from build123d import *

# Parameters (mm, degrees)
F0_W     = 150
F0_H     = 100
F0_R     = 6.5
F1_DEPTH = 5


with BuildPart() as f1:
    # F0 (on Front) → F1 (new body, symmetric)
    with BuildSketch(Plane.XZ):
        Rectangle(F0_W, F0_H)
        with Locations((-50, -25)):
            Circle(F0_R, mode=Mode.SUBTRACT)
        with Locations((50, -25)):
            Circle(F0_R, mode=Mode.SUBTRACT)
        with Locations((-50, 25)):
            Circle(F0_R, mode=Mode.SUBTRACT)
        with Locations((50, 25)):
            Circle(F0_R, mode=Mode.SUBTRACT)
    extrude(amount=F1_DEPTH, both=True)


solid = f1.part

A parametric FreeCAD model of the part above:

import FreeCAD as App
import Part
import Sketcher


def add_polygon(sketch, points):
    """Adds a closed chain of lines whose ends are joined by coincident constraints."""
    first, n = sketch.GeometryCount, len(points)
    for a, b in zip(points, points[1:] + points[:1]):
        sketch.addGeometry(Part.LineSegment(App.Vector(*a, 0), App.Vector(*b, 0)), False)
    for i in range(n):
        sketch.addConstraint(Sketcher.Constraint("Coincident", first + i, 2, first + (i + 1) % n, 1))

doc = App.newDocument("Part")
body = doc.addObject("PartDesign::Body", "Body")

# Sketch on XZ plane
sketch1 = doc.addObject("Sketcher::SketchObject", "Sketch")
body.addObject(sketch1)
sketch1.AttachmentSupport = (doc.XZ_Plane, [""])
sketch1.MapMode = "FlatFace"
add_polygon(sketch1, [(-75, 50), (-75, -50), (75, -50), (75, 50)])  # lines 0-3
sketch1.addGeometry(Part.Circle(App.Vector(-50, -25, 0), App.Vector(0, 0, 1), 6.5), False)  # 4
sketch1.addGeometry(Part.Circle(App.Vector(50, -25, 0), App.Vector(0, 0, 1), 6.5), False)  # 5
sketch1.addGeometry(Part.Circle(App.Vector(-50, 25, 0), App.Vector(0, 0, 1), 6.5), False)  # 6
sketch1.addGeometry(Part.Circle(App.Vector(50, 25, 0), App.Vector(0, 0, 1), 6.5), False)  # 7
sketch1.addConstraint(Sketcher.Constraint("Vertical", 0))
sketch1.addConstraint(Sketcher.Constraint("Horizontal", 1))
sketch1.addConstraint(Sketcher.Constraint("Vertical", 2))
sketch1.addConstraint(Sketcher.Constraint("Horizontal", 3))
sketch1.addConstraint(Sketcher.Constraint("Equal", 4, 5))
sketch1.addConstraint(Sketcher.Constraint("Equal", 5, 6))
sketch1.addConstraint(Sketcher.Constraint("Equal", 6, 7))
sketch1.addConstraint(Sketcher.Constraint("Symmetric", 5, 3, 6, 3, -1, 1))
sketch1.addConstraint(Sketcher.Constraint("Symmetric", 4, 3, 7, 3, -1, 1))
sketch1.addConstraint(Sketcher.Constraint("Symmetric", 0, 2, 2, 2, -1, 1))
sketch1.addConstraint(Sketcher.Constraint("Symmetric", 4, 3, 5, 3, -2))
sketch1.addConstraint(Sketcher.Constraint("Diameter", 4, 13.0))
sketch1.addConstraint(Sketcher.Constraint("DistanceX", 1, 1, 1, 2, 150.0))
sketch1.addConstraint(Sketcher.Constraint("DistanceY", 0, 2, 0, 1, 100.0))
sketch1.addConstraint(Sketcher.Constraint("DistanceX", 4, 3, -1, 1, 50.0))
sketch1.addConstraint(Sketcher.Constraint("DistanceY", 4, 3, -1, 1, 25.0))
pad1 = doc.addObject("PartDesign::Pad", "Pad")
body.addObject(pad1)
pad1.Profile = sketch1
pad1.Length = 10
pad1.Midplane = True

doc.recompute()
